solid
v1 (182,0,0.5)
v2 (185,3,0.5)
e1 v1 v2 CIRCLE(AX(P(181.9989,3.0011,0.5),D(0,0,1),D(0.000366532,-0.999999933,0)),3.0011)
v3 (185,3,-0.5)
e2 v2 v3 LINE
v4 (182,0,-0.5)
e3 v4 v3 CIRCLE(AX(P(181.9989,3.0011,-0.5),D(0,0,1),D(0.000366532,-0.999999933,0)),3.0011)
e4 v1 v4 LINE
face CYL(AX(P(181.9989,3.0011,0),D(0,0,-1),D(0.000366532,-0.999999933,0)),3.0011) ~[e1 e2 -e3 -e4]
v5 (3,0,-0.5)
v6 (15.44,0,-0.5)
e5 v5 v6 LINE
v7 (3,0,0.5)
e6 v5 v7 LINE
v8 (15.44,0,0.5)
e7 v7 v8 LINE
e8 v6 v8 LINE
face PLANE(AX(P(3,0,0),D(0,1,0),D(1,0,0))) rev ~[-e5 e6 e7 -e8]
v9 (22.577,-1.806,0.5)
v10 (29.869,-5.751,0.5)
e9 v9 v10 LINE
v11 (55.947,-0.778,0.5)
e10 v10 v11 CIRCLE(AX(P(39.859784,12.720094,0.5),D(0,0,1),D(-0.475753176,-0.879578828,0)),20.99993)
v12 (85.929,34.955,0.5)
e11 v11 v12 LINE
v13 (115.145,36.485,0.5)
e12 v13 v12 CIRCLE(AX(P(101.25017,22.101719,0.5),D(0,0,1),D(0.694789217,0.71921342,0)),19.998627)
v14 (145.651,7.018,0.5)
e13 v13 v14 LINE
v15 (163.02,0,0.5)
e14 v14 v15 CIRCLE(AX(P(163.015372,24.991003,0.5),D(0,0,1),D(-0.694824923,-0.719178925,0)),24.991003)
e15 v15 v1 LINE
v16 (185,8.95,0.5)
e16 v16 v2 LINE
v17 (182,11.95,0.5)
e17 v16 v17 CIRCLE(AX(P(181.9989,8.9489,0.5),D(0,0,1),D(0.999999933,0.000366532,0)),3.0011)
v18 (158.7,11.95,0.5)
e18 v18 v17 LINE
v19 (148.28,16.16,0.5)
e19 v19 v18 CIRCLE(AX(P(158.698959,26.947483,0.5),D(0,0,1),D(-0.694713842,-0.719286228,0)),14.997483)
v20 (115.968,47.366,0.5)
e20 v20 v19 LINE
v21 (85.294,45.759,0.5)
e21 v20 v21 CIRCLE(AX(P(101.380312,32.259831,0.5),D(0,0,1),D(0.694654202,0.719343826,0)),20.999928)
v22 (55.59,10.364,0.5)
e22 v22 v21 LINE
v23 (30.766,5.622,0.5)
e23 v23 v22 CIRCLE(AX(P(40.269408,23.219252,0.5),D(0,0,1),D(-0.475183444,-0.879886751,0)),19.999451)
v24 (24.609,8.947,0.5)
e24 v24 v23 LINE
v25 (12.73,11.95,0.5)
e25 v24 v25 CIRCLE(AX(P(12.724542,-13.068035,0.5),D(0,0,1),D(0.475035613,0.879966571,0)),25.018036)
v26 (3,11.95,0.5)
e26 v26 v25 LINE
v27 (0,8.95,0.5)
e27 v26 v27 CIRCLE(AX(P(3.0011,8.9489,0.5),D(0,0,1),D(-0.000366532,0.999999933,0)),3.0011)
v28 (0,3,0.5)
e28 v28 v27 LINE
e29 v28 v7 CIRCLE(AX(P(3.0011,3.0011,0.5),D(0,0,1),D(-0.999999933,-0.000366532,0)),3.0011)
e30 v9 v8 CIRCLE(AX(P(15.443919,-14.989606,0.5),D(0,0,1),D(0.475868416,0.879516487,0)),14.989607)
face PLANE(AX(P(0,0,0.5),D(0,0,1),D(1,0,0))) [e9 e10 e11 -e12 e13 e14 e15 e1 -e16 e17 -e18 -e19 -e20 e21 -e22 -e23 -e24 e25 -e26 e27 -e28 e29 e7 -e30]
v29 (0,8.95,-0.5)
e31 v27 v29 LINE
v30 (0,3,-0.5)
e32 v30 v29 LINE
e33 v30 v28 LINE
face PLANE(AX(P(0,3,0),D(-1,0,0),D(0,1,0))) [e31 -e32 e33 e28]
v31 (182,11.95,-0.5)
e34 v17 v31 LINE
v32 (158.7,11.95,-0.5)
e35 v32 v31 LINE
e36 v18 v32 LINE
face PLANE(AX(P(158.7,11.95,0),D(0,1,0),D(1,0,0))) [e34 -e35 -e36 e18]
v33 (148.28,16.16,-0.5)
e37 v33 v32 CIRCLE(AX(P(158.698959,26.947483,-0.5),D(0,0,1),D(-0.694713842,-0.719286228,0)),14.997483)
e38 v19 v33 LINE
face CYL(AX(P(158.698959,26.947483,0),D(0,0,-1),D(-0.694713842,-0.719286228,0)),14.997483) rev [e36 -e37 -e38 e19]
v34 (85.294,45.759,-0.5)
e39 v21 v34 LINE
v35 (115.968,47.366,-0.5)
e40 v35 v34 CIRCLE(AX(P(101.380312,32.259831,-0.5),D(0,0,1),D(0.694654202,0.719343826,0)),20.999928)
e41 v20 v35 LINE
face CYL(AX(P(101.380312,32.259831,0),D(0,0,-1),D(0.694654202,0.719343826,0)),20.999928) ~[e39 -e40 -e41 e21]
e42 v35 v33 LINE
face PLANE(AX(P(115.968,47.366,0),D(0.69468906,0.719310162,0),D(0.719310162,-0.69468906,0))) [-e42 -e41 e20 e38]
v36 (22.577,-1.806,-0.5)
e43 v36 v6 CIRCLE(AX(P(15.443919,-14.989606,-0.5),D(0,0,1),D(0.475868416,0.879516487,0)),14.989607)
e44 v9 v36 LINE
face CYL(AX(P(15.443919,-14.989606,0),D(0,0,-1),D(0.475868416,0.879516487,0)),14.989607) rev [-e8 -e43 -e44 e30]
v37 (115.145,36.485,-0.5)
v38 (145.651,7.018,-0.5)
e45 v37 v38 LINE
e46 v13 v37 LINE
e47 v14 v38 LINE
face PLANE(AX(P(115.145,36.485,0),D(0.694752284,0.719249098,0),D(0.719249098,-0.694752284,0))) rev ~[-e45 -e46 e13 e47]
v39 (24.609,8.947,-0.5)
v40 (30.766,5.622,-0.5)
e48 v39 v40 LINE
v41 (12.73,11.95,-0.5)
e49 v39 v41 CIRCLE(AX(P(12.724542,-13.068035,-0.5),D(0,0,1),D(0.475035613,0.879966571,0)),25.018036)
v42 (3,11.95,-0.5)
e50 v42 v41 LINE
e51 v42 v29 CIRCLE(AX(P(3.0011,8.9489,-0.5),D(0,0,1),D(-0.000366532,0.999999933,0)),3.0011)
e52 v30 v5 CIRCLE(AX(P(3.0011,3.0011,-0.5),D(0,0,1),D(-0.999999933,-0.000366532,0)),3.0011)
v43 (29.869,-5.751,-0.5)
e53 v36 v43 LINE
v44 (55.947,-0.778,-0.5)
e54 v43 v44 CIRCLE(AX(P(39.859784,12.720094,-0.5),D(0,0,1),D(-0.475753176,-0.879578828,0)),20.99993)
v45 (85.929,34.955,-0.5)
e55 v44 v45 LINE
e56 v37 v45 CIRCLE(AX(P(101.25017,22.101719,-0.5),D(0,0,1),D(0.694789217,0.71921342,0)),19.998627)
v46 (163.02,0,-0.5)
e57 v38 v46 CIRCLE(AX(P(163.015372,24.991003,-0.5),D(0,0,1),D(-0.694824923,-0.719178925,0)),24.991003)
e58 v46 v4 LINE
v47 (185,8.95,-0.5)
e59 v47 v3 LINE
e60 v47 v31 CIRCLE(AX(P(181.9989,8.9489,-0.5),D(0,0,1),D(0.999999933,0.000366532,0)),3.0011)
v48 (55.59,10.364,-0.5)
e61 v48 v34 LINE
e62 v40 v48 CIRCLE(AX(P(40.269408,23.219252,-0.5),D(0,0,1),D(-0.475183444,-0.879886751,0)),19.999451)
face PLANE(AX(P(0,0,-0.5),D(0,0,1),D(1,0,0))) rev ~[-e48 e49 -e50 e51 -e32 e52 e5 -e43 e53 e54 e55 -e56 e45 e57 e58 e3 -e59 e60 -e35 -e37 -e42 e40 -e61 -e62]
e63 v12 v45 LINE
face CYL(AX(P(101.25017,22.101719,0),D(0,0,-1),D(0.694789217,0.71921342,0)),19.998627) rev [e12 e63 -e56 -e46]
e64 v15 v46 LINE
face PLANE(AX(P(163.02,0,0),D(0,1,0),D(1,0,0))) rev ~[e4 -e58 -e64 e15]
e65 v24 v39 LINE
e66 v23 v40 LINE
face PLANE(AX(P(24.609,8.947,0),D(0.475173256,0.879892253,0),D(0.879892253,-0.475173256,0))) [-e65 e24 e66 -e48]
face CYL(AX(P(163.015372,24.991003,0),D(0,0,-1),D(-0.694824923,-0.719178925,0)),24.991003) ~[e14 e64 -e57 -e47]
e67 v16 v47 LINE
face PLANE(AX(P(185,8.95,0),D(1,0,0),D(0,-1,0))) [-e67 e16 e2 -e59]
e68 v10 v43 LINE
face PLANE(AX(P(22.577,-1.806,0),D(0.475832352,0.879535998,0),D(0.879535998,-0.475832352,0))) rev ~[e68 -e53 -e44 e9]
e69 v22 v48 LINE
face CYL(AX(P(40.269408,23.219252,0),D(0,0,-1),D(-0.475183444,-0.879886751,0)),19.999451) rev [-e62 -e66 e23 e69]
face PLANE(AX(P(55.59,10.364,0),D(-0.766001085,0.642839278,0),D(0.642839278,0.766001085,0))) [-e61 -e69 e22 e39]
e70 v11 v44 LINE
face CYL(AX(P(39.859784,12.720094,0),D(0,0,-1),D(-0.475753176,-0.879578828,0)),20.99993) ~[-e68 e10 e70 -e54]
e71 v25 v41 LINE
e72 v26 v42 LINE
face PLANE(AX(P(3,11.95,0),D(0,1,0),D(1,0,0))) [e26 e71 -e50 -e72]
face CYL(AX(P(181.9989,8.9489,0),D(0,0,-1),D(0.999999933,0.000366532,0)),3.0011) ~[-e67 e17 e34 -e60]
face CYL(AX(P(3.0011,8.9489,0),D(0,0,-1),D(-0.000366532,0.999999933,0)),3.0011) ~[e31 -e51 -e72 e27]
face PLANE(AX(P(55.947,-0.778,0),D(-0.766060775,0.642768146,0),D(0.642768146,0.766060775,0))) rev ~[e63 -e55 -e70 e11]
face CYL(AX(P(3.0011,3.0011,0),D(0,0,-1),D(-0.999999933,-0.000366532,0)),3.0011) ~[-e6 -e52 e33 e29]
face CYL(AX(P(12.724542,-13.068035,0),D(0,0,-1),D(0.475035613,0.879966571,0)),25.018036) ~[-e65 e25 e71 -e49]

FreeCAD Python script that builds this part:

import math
import FreeCAD as App
import Part
import Sketcher

doc = App.newDocument("Part")
body = doc.addObject("PartDesign::Body", "Body")

sketch1 = body.newObject("Sketcher::SketchObject", "Sketch")
sketch1.AttachmentSupport = (doc.getObject("XY_Plane"), [""])
sketch1.MapMode = "FlatFace"
sketch1.addGeometry(Part.LineSegment(App.Vector(0, 8.95, 0), App.Vector(0, 3, 0)), False)
sketch1.addGeometry(Part.ArcOfCircle(Part.Circle(App.Vector(3.0011, 3.0011, 0), App.Vector(0, 0, 1), 3.0011), math.radians(-179.978999), math.radians(-90.021001)), False)
sketch1.addGeometry(Part.LineSegment(App.Vector(3, 0, 0), App.Vector(15.44, 0, 0)), False)
sketch1.addGeometry(Part.ArcOfCircle(Part.Circle(App.Vector(15.444, -14.9894, 0), App.Vector(0, 0, 1), 14.989387), math.radians(61.583988), math.radians(90.01529)), False)
sketch1.addGeometry(Part.LineSegment(App.Vector(22.577, -1.806, 0), App.Vector(29.869, -5.751, 0)), False)
sketch1.addGeometry(Part.ArcOfCircle(Part.Circle(App.Vector(39.8598, 12.7202, 0), App.Vector(0, 0, 1), 21.000031), math.radians(-118.408303), math.radians(-39.998822)), False)
sketch1.addGeometry(Part.LineSegment(App.Vector(55.947, -0.778, 0), App.Vector(85.929, 34.955, 0)), False)
sketch1.addGeometry(Part.ArcOfCircle(Part.Circle(App.Vector(101.2502, 22.1018, 0), App.Vector(0, 0, 1), 19.998548), math.radians(45.989479), math.radians(140.006174)), False)
sketch1.addGeometry(Part.LineSegment(App.Vector(115.145, 36.485, 0), App.Vector(145.651, 7.018, 0)), False)
sketch1.addGeometry(Part.ArcOfCircle(Part.Circle(App.Vector(163.0155, 24.9912, 0), App.Vector(0, 0, 1), 24.991234), math.radians(-134.013165), math.radians(-89.989683)), False)
sketch1.addGeometry(Part.LineSegment(App.Vector(163.02, 0, 0), App.Vector(182, 0, 0)), False)
sketch1.addGeometry(Part.ArcOfCircle(Part.Circle(App.Vector(181.9989, 3.0011, 0), App.Vector(0, 0, 1), 3.0011), math.radians(-89.978999), math.radians(-0.021001)), False)
sketch1.addGeometry(Part.LineSegment(App.Vector(185, 3, 0), App.Vector(185, 8.95, 0)), False)
sketch1.addGeometry(Part.ArcOfCircle(Part.Circle(App.Vector(181.9989, 8.9489, 0), App.Vector(0, 0, 1), 3.0011), math.radians(0.021001), math.radians(89.978999)), False)
sketch1.addGeometry(Part.LineSegment(App.Vector(182, 11.95, 0), App.Vector(158.7, 11.95, 0)), False)
sketch1.addGeometry(Part.ArcOfCircle(Part.Circle(App.Vector(158.6991, 26.9477, 0), App.Vector(0, 0, 1), 14.997737), math.radians(-134.00423), math.radians(-89.996562)), False)
sketch1.addGeometry(Part.LineSegment(App.Vector(148.28, 16.16, 0), App.Vector(115.968, 47.366, 0)), False)
sketch1.addGeometry(Part.ArcOfCircle(Part.Circle(App.Vector(101.3803, 32.2598, 0), App.Vector(0, 0, 1), 20.999959), math.radians(46.000369), math.radians(139.997509)), False)
sketch1.addGeometry(Part.LineSegment(App.Vector(85.294, 45.759, 0), App.Vector(55.59, 10.364, 0)), False)
sketch1.addGeometry(Part.ArcOfCircle(Part.Circle(App.Vector(40.2694, 23.2192, 0), App.Vector(0, 0, 1), 19.999401), math.radians(-118.371345), math.radians(-39.99932)), False)
sketch1.addGeometry(Part.LineSegment(App.Vector(30.766, 5.622, 0), App.Vector(24.609, 8.947, 0)), False)
sketch1.addGeometry(Part.ArcOfCircle(Part.Circle(App.Vector(12.7244, -13.0684, 0), App.Vector(0, 0, 1), 25.018424), math.radians(61.638442), math.radians(89.987175)), False)
sketch1.addGeometry(Part.LineSegment(App.Vector(12.73, 11.95, 0), App.Vector(3, 11.95, 0)), False)
sketch1.addGeometry(Part.ArcOfCircle(Part.Circle(App.Vector(3.0011, 8.9489, 0), App.Vector(0, 0, 1), 3.0011), math.radians(90.021001), math.radians(179.978999)), False)
sketch1.addConstraint(Sketcher.Constraint("Coincident", 0, 2, 1, 1))
sketch1.addConstraint(Sketcher.Constraint("Coincident", 1, 2, 2, 1))
sketch1.addConstraint(Sketcher.Constraint("Coincident", 2, 2, 3, 2))
sketch1.addConstraint(Sketcher.Constraint("Coincident", 3, 1, 4, 1))
sketch1.addConstraint(Sketcher.Constraint("Coincident", 4, 2, 5, 1))
sketch1.addConstraint(Sketcher.Constraint("Coincident", 5, 2, 6, 1))
sketch1.addConstraint(Sketcher.Constraint("Coincident", 6, 2, 7, 2))
sketch1.addConstraint(Sketcher.Constraint("Coincident", 7, 1, 8, 1))
sketch1.addConstraint(Sketcher.Constraint("Coincident", 8, 2, 9, 1))
sketch1.addConstraint(Sketcher.Constraint("Coincident", 9, 2, 10, 1))
sketch1.addConstraint(Sketcher.Constraint("Coincident", 10, 2, 11, 1))
sketch1.addConstraint(Sketcher.Constraint("Coincident", 11, 2, 12, 1))
sketch1.addConstraint(Sketcher.Constraint("Coincident", 12, 2, 13, 1))
sketch1.addConstraint(Sketcher.Constraint("Coincident", 13, 2, 14, 1))
sketch1.addConstraint(Sketcher.Constraint("Coincident", 14, 2, 15, 2))
sketch1.addConstraint(Sketcher.Constraint("Coincident", 15, 1, 16, 1))
sketch1.addConstraint(Sketcher.Constraint("Coincident", 16, 2, 17, 1))
sketch1.addConstraint(Sketcher.Constraint("Coincident", 17, 2, 18, 1))
sketch1.addConstraint(Sketcher.Constraint("Coincident", 18, 2, 19, 2))
sketch1.addConstraint(Sketcher.Constraint("Coincident", 19, 1, 20, 1))
sketch1.addConstraint(Sketcher.Constraint("Coincident", 20, 2, 21, 1))
sketch1.addConstraint(Sketcher.Constraint("Coincident", 21, 2, 22, 1))
sketch1.addConstraint(Sketcher.Constraint("Coincident", 22, 2, 23, 1))
sketch1.addConstraint(Sketcher.Constraint("Coincident", 23, 2, 0, 1))
sketch1.addConstraint(Sketcher.Constraint("Vertical", 0))
sketch1.addConstraint(Sketcher.Constraint("Horizontal", 2))
sketch1.addConstraint(Sketcher.Constraint("Horizontal", 10))
sketch1.addConstraint(Sketcher.Constraint("Vertical", 12))
sketch1.addConstraint(Sketcher.Constraint("Horizontal", 14))
sketch1.addConstraint(Sketcher.Constraint("Horizontal", 22))
sketch1.addConstraint(Sketcher.Constraint("PointOnObject", 0, 2, -2))
sketch1.addConstraint(Sketcher.Constraint("PointOnObject", 1, 2, -1))
sketch1.addConstraint(Sketcher.Constraint("PointOnObject", 9, 2, -1))
sketch1.addConstraint(Sketcher.Constraint("Radius", 5, 21.0))
sketch1.addConstraint(Sketcher.Constraint("Radius", 17, 21.0))
sketch1.addConstraint(Sketcher.Constraint("DistanceX", 14, 2, 14, 1, 23.3))
sketch1.addConstraint(Sketcher.Constraint("DistanceY", -1, 1, 0, 2, 3.0))
sketch1.addConstraint(Sketcher.Constraint("DistanceX", -1, 1, 1, 2, 3.0))
sketch1.addConstraint(Sketcher.Constraint("DistanceX", -1, 1, 10, 2, 182.0))
sketch1.addConstraint(Sketcher.Constraint("DistanceX", -1, 1, 11, 2, 185.0))
sketch1.addConstraint(Sketcher.Constraint("DistanceY", -1, 1, 11, 2, 3.0))
sketch1.addConstraint(Sketcher.Constraint("DistanceX", -1, 1, 13, 2, 182.0))
sketch1.addConstraint(Sketcher.Constraint("DistanceX", -1, 1, 22, 2, 3.0))
sketch1.addConstraint(Sketcher.Constraint("Radius", 1, 3.001))
sketch1.addConstraint(Sketcher.Constraint("Radius", 11, 3.001))
sketch1.addConstraint(Sketcher.Constraint("Radius", 13, 3.001))
sketch1.addConstraint(Sketcher.Constraint("Radius", 23, 3.001))
sketch1.addConstraint(Sketcher.Constraint("DistanceY", 12, 2, 13, 2, 3.0))
sketch1.addConstraint(Sketcher.Constraint("DistanceY", 23, 2, 22, 2, 3.0))
sketch1.addConstraint(Sketcher.Constraint("DistanceX", 2, 1, 2, 2, 12.44))
sketch1.addConstraint(Sketcher.Constraint("DistanceX", 10, 1, 10, 2, 18.98))
sketch1.addConstraint(Sketcher.Constraint("DistanceX", 22, 2, 22, 1, 9.73))
sketch1.addConstraint(Sketcher.Constraint("DistanceY", 0, 2, 0, 1, 5.95))
sketch1.addConstraint(Sketcher.Constraint("DistanceY", 12, 1, 12, 2, 5.95))
sketch1.addConstraint(Sketcher.Constraint("Radius", 3, 14.9894))
sketch1.addConstraint(Sketcher.Constraint("Radius", 7, 19.9985))
sketch1.addConstraint(Sketcher.Constraint("Radius", 9, 24.9912))
sketch1.addConstraint(Sketcher.Constraint("Radius", 15, 14.9977))
sketch1.addConstraint(Sketcher.Constraint("Radius", 19, 19.9994))
sketch1.addConstraint(Sketcher.Constraint("Radius", 21, 25.0184))
sketch1.addConstraint(Sketcher.Constraint("DistanceX", -1, 1, 15, 1, 148.28))
sketch1.addConstraint(Sketcher.Constraint("DistanceY", -1, 1, 15, 1, 16.16))
sketch1.addConstraint(Sketcher.Constraint("DistanceX", -1, 1, 18, 2, 55.59))
sketch1.addConstraint(Sketcher.Constraint("DistanceX", 7, 3, 17, 3, 0.13))
sketch1.addConstraint(Sketcher.Constraint("DistanceX", 3, 1, 5, 2, 33.37))
sketch1.addConstraint(Sketcher.Constraint("DistanceY", 6, 2, 7, 1, 1.53))
sketch1.addConstraint(Sketcher.Constraint("DistanceY", 3, 1, 18, 2, 12.17))
sketch1.addConstraint(Sketcher.Constraint("DistanceX", 20, 2, 4, 2, 5.26))
sketch1.addConstraint(Sketcher.Constraint("DistanceX", -1, 1, 3, 3, 15.444))
sketch1.addConstraint(Sketcher.Constraint("DistanceX", -1, 1, 3, 1, 22.577))
sketch1.addConstraint(Sketcher.Constraint("DistanceX", -1, 1, 4, 2, 29.869))
sketch1.addConstraint(Sketcher.Constraint("DistanceY", 4, 2, -1, 1, 5.751))
sketch1.addConstraint(Sketcher.Constraint("DistanceY", 5, 2, -1, 1, 0.778))
sketch1.addConstraint(Sketcher.Constraint("DistanceX", -1, 1, 6, 2, 85.929))
sketch1.addConstraint(Sketcher.Constraint("DistanceY", -1, 1, 6, 2, 34.955))
sketch1.addConstraint(Sketcher.Constraint("DistanceX", -1, 1, 7, 1, 115.145))
sketch1.addConstraint(Sketcher.Constraint("DistanceX", -1, 1, 8, 2, 145.651))
sketch1.addConstraint(Sketcher.Constraint("DistanceY", -1, 1, 8, 2, 7.018))
sketch1.addConstraint(Sketcher.Constraint("DistanceX", -1, 1, 16, 2, 115.968))
sketch1.addConstraint(Sketcher.Constraint("DistanceY", -1, 1, 16, 2, 47.366))
sketch1.addConstraint(Sketcher.Constraint("DistanceX", -1, 1, 17, 2, 85.294))
sketch1.addConstraint(Sketcher.Constraint("DistanceX", -1, 1, 19, 1, 30.766))
sketch1.addConstraint(Sketcher.Constraint("DistanceY", -1, 1, 19, 1, 5.622))
sketch1.addConstraint(Sketcher.Constraint("DistanceY", -1, 1, 20, 2, 8.947))
pad1 = body.newObject("PartDesign::Pad", "Pad")
pad1.Profile = sketch1
pad1.Length = 1
pad1.Midplane = True

doc.recompute()
